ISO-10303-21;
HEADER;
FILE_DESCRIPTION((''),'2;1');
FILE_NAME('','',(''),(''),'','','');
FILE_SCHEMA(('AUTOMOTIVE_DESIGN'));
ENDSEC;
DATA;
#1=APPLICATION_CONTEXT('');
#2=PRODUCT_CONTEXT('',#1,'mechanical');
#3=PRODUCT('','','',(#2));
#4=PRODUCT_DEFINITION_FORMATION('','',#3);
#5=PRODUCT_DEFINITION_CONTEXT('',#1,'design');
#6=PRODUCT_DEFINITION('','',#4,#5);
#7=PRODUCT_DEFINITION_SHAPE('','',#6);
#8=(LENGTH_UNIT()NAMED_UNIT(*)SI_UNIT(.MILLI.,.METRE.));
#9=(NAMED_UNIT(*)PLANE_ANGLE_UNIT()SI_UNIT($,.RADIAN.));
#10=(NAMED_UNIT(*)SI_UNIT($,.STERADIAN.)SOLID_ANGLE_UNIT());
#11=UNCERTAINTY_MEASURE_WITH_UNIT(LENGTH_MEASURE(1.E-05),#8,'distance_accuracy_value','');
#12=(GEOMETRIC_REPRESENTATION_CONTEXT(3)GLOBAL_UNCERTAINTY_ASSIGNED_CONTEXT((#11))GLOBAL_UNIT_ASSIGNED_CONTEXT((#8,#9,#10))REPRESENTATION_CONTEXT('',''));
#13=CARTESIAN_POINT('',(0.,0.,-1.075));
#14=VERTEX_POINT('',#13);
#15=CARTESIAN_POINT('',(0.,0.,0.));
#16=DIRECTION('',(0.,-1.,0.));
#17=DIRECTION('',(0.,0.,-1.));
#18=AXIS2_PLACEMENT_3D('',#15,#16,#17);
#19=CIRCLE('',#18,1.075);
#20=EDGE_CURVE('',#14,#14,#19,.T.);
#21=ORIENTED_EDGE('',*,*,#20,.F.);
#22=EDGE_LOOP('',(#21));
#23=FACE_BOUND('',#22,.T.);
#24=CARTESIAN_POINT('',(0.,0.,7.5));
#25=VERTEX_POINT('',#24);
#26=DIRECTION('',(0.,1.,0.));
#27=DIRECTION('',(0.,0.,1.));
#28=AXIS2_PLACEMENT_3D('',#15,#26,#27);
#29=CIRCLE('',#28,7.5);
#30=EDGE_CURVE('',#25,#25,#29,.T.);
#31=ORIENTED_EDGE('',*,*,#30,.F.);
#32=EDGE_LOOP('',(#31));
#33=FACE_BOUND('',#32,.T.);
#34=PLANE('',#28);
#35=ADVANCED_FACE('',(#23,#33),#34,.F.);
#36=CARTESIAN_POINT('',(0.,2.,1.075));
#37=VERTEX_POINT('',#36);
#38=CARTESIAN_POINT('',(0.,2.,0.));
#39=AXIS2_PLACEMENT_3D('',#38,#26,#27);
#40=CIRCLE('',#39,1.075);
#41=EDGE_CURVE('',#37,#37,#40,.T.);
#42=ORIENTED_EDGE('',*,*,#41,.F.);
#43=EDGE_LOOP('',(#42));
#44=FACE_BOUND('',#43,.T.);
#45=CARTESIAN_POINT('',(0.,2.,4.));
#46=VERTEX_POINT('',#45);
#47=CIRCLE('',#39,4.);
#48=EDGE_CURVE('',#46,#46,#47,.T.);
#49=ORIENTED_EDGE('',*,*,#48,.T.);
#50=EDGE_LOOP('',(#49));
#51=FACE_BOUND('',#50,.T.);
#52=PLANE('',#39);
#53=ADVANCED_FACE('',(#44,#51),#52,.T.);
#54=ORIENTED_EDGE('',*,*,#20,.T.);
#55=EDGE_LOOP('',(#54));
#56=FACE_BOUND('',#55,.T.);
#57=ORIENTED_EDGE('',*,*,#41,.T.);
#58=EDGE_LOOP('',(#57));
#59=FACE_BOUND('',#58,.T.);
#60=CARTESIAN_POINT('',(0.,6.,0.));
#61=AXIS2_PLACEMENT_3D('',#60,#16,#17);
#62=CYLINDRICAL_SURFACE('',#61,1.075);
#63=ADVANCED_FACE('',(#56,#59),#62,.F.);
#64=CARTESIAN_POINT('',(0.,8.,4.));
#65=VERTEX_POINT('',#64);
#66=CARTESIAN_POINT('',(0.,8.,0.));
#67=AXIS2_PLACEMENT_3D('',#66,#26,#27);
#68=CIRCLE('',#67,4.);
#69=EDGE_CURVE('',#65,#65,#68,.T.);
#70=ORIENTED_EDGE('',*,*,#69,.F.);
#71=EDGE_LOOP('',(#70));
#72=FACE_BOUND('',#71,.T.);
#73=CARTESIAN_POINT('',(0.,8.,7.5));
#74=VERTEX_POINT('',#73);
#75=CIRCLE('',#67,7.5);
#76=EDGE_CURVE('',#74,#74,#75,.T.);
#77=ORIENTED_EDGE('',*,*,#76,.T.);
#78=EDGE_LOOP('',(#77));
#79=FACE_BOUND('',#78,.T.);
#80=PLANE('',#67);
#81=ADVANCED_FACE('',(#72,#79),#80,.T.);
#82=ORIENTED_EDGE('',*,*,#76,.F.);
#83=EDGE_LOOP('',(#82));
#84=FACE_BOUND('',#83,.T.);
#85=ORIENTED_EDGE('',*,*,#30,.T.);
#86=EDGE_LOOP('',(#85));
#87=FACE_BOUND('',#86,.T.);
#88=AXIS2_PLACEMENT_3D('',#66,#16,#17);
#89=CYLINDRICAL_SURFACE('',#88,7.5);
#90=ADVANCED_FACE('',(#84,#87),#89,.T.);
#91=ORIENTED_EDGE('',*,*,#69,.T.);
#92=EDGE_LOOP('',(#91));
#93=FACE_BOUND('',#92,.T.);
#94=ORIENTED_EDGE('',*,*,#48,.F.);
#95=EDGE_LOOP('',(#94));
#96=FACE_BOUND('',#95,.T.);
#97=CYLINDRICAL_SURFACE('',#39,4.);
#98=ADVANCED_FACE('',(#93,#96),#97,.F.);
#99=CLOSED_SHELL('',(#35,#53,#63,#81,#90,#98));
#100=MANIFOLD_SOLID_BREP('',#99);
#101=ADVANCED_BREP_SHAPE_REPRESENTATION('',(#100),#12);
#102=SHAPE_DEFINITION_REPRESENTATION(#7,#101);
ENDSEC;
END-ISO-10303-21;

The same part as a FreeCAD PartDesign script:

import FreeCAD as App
import Part
import Sketcher

doc = App.newDocument("Part")
body = doc.addObject("PartDesign::Body", "Body")

sketch1 = doc.addObject("Sketcher::SketchObject", "Sketch")
body.addObject(sketch1)
sketch1.AttachmentSupport = (doc.XZ_Plane, [""])
sketch1.MapMode = "FlatFace"
sketch1.addGeometry(Part.Circle(App.Vector(0, 0, 0), App.Vector(0, 0, 1), 8), False)
sketch1.addConstraint([
    Sketcher.Constraint("Coincident", 0, 3, -1, 1),
    Sketcher.Constraint("Diameter", 0, 15.0),
])
pad1 = doc.addObject("PartDesign::Pad", "Pad")
body.addObject(pad1)
pad1.Profile = sketch1
pad1.Length = 8
pad1.Reversed = True

sketch2 = doc.addObject("Sketcher::SketchObject", "Sketch001")
body.addObject(sketch2)
sketch2.AttachmentSupport = (doc.XZ_Plane, [""])
sketch2.MapMode = "FlatFace"
sketch2.AttachmentOffset = App.Placement(App.Vector(0, 0, -8), App.Rotation())
sketch2.addGeometry(Part.Circle(App.Vector(0, 0, 0), App.Vector(0, 0, 1), 4), False)
sketch2.addConstraint([
    Sketcher.Constraint("Coincident", 0, 3, -1, 1),
    Sketcher.Constraint("Diameter", 0, 8.0),
])
pocket1 = doc.addObject("PartDesign::Pocket", "Pocket")
body.addObject(pocket1)
pocket1.Profile = sketch2
pocket1.Length = 6
pocket1.Reversed = True

sketch3 = doc.addObject("Sketcher::SketchObject", "Sketch002")
body.addObject(sketch3)
sketch3.AttachmentSupport = (doc.XZ_Plane, [""])
sketch3.MapMode = "FlatFace"
sketch3.addGeometry(Part.Circle(App.Vector(0, 0, 0), App.Vector(0, 0, 1), 1.1), False)
sketch3.addConstraint([
    Sketcher.Constraint("Coincident", 0, 3, -1, 1),
    Sketcher.Constraint("Diameter", 0, 2.15),
])
pocket2 = doc.addObject("PartDesign::Pocket", "Pocket001")
body.addObject(pocket2)
pocket2.Profile = sketch3
pocket2.Length = 6

doc.recompute()
